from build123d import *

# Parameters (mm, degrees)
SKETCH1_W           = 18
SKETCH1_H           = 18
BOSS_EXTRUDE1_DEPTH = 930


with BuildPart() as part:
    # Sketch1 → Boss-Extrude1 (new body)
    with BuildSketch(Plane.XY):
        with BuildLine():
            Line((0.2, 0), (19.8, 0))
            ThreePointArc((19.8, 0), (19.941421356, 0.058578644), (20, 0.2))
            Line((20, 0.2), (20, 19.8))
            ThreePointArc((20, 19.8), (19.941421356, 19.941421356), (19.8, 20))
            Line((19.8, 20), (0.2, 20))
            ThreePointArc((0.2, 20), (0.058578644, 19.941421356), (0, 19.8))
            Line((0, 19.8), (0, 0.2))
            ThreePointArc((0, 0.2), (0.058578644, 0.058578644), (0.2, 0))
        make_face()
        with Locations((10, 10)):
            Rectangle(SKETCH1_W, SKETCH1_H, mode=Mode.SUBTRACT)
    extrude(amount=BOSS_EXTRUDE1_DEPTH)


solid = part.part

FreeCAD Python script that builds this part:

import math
import FreeCAD as App
import Part
import Sketcher
from FreeCAD import Vector
Q = App.Units.Quantity

doc = App.newDocument("Part")
body = doc.addObject("PartDesign::Body", "Body")

# Sketch on XY plane
sketch1 = doc.addObject("Sketcher::SketchObject", "Sketch")
body.addObject(sketch1)
sketch1.AttachmentSupport = (doc.XY_Plane, [""])
sketch1.MapMode = "FlatFace"
sketch1.addGeometry(Part.LineSegment(Vector(0.2, 0, 0), Vector(19.8, 0, 0)), False)
sketch1.addGeometry(Part.ArcOfCircle(Part.Circle(Vector(19.8, 0.2, 0), Vector(0, 0, 1), 0.2), math.radians(-90), math.radians(0)), False)
sketch1.addGeometry(Part.LineSegment(Vector(20, 0.2, 0), Vector(20, 19.8, 0)), False)
sketch1.addGeometry(Part.ArcOfCircle(Part.Circle(Vector(19.8, 19.8, 0), Vector(0, 0, 1), 0.2), math.radians(0), math.radians(90)), False)
sketch1.addGeometry(Part.LineSegment(Vector(19.8, 20, 0), Vector(0.2, 20, 0)), False)
sketch1.addGeometry(Part.ArcOfCircle(Part.Circle(Vector(0.2, 19.8, 0), Vector(0, 0, 1), 0.2), math.radians(90), math.radians(180)), False)
sketch1.addGeometry(Part.LineSegment(Vector(0, 19.8, 0), Vector(0, 0.2, 0)), False)
sketch1.addGeometry(Part.ArcOfCircle(Part.Circle(Vector(0.2, 0.2, 0), Vector(0, 0, 1), 0.2), math.radians(-180), math.radians(-90)), False)
sketch1.addGeometry(Part.LineSegment(Vector(19, 1, 0), Vector(1, 1, 0)), False)
sketch1.addGeometry(Part.LineSegment(Vector(1, 1, 0), Vector(1, 19, 0)), False)
sketch1.addGeometry(Part.LineSegment(Vector(1, 19, 0), Vector(19, 19, 0)), False)
sketch1.addGeometry(Part.LineSegment(Vector(19, 19, 0), Vector(19, 1, 0)), False)
sketch1.addConstraint(Sketcher.Constraint("Tangent", 0, 2, 1, 1))
sketch1.addConstraint(Sketcher.Constraint("Tangent", 1, 2, 2, 1))
sketch1.addConstraint(Sketcher.Constraint("Tangent", 2, 2, 3, 1))
sketch1.addConstraint(Sketcher.Constraint("Tangent", 3, 2, 4, 1))
sketch1.addConstraint(Sketcher.Constraint("Tangent", 4, 2, 5, 1))
sketch1.addConstraint(Sketcher.Constraint("Tangent", 5, 2, 6, 1))
sketch1.addConstraint(Sketcher.Constraint("Tangent", 6, 2, 7, 1))
sketch1.addConstraint(Sketcher.Constraint("Tangent", 7, 2, 0, 1))
sketch1.addConstraint(Sketcher.Constraint("Coincident", 8, 2, 9, 1))
sketch1.addConstraint(Sketcher.Constraint("Coincident", 9, 2, 10, 1))
sketch1.addConstraint(Sketcher.Constraint("Coincident", 10, 2, 11, 1))
sketch1.addConstraint(Sketcher.Constraint("Coincident", 11, 2, 8, 1))
sketch1.addConstraint(Sketcher.Constraint("Horizontal", 0))
sketch1.addConstraint(Sketcher.Constraint("Vertical", 2))
sketch1.addConstraint(Sketcher.Constraint("Horizontal", 4))
sketch1.addConstraint(Sketcher.Constraint("Vertical", 6))
sketch1.addConstraint(Sketcher.Constraint("Horizontal", 8))
sketch1.addConstraint(Sketcher.Constraint("Vertical", 9))
sketch1.addConstraint(Sketcher.Constraint("Horizontal", 10))
sketch1.addConstraint(Sketcher.Constraint("Vertical", 11))
sketch1.addConstraint(Sketcher.Constraint("Equal", 1, 3))
sketch1.addConstraint(Sketcher.Constraint("Equal", 3, 5))
sketch1.addConstraint(Sketcher.Constraint("Equal", 5, 7))
sketch1.addConstraint(Sketcher.Constraint("PointOnObject", 0, 2, -1))
sketch1.addConstraint(Sketcher.Constraint("PointOnObject", 5, 2, -2))
sketch1.addConstraint(Sketcher.Constraint("Equal", 4, 2))
sketch1.addConstraint(Sketcher.Constraint("Equal", 10, 9))
sketch1.addConstraint(Sketcher.Constraint("Radius", 1, Q("0.2 mm")))
sketch1.addConstraint(Sketcher.Constraint("DistanceX", 8, 2, 8, 1, Q("18 mm")))
sketch1.addConstraint(Sketcher.Constraint("DistanceX", 0, 1, 0, 2, Q("19.6 mm")))
sketch1.addConstraint(Sketcher.Constraint("DistanceX", -1, 1, 8, 2, Q("1 mm")))
sketch1.addConstraint(Sketcher.Constraint("DistanceY", -1, 1, 8, 2, Q("1 mm")))
pad1 = doc.addObject("PartDesign::Pad", "Pad")
body.addObject(pad1)
pad1.Profile = sketch1
pad1.Length = 930

doc.recompute()
